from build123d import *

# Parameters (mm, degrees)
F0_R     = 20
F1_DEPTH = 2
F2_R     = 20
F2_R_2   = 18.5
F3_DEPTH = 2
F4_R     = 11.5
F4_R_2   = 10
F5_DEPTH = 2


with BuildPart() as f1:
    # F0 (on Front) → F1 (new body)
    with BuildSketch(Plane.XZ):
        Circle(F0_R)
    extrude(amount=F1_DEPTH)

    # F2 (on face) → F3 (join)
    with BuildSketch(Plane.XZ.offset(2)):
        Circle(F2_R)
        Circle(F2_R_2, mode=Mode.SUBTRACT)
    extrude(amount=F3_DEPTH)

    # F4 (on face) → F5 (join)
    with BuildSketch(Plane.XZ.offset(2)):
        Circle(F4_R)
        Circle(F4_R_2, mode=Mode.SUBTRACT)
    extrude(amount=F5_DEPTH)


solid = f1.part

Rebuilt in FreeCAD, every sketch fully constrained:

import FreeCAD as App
import Part
import Sketcher
from FreeCAD import Vector
Q = App.Units.Quantity

doc = App.newDocument("Part")
body = doc.addObject("PartDesign::Body", "Body")

# Sketch on XZ plane
sketch1 = body.newObject("Sketcher::SketchObject", "Sketch")
sketch1.AttachmentSupport = (doc.getObject("XZ_Plane"), [""])
sketch1.MapMode = "FlatFace"
sketch1.addGeometry(Part.Circle(Vector(0, 0, 0), Vector(0, 0, 1), 20), False)
sketch1.addConstraint([
    Sketcher.Constraint("Coincident", 0, 3, -1, 1),
    Sketcher.Constraint("Diameter", 0, Q("40 mm")),
])
pad1 = body.newObject("PartDesign::Pad", "Pad")
pad1.Profile = sketch1
pad1.Length = 2

# Sketch on XZ plane
sketch2 = body.newObject("Sketcher::SketchObject", "Sketch001")
sketch2.AttachmentSupport = (doc.getObject("XZ_Plane"), [""])
sketch2.MapMode = "FlatFace"
sketch2.AttachmentOffset = App.Placement(Vector(0, 0, 2), App.Rotation())
sketch2.addGeometry([
    Part.Circle(Vector(0, 0, 0), Vector(0, 0, 1), 20),
    Part.Circle(Vector(0, 0, 0), Vector(0, 0, 1), 18),
], False)
sketch2.addConstraint([
    Sketcher.Constraint("Coincident", 0, 3, -1, 1),
    Sketcher.Constraint("Coincident", 1, 3, -1, 1),
    Sketcher.Constraint("Diameter", 0, Q("40 mm")),
    Sketcher.Constraint("Diameter", 1, Q("37 mm")),
])
pad2 = body.newObject("PartDesign::Pad", "Pad001")
pad2.Profile = sketch2
pad2.Length = 2

# Sketch on XZ plane
sketch3 = body.newObject("Sketcher::SketchObject", "Sketch002")
sketch3.AttachmentSupport = (doc.getObject("XZ_Plane"), [""])
sketch3.MapMode = "FlatFace"
sketch3.AttachmentOffset = App.Placement(Vector(0, 0, 2), App.Rotation())
sketch3.addGeometry([
    Part.Circle(Vector(0, 0, 0), Vector(0, 0, 1), 12),
    Part.Circle(Vector(0, 0, 0), Vector(0, 0, 1), 10),
], False)
sketch3.addConstraint([
    Sketcher.Constraint("Coincident", 0, 3, -1, 1),
    Sketcher.Constraint("Coincident", 1, 3, -1, 1),
    Sketcher.Constraint("Diameter", 0, Q("23 mm")),
    Sketcher.Constraint("Diameter", 1, Q("20 mm")),
])
pad3 = body.newObject("PartDesign::Pad", "Pad002")
pad3.Profile = sketch3
pad3.Length = 2

doc.recompute()
